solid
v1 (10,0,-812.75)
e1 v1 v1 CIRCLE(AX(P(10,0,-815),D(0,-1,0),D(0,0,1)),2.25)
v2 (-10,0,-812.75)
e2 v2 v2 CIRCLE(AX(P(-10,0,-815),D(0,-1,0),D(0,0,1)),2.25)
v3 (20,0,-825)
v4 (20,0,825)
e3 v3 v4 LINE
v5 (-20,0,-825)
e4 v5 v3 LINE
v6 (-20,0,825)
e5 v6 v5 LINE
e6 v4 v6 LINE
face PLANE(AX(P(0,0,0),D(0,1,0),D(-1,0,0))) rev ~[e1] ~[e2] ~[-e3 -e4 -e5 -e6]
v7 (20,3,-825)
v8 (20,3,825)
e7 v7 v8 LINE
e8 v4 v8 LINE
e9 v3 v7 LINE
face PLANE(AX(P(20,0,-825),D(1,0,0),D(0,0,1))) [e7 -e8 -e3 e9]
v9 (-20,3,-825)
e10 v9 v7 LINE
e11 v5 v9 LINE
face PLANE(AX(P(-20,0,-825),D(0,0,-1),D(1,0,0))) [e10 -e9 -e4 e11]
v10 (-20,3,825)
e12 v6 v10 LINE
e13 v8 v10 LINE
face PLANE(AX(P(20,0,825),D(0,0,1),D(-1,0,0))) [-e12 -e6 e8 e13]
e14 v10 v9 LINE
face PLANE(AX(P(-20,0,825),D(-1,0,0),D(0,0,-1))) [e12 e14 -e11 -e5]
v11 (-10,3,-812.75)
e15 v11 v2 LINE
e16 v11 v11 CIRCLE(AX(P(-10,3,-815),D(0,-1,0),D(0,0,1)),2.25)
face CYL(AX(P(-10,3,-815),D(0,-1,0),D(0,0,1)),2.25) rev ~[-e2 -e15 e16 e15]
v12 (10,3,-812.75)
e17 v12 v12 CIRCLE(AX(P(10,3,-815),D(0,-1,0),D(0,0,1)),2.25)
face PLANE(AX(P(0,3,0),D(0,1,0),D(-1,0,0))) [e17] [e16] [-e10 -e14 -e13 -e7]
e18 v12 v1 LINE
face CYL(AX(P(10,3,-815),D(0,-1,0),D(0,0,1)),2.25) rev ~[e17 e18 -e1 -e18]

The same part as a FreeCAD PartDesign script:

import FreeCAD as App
import Part
import Sketcher
from FreeCAD import Vector

doc = App.newDocument("Part")
body = doc.addObject("PartDesign::Body", "Body")

# Sketch on XZ plane
sketch1 = body.newObject("Sketcher::SketchObject", "Sketch")
sketch1.AttachmentSupport = (doc.getObject("XZ_Plane"), [""])
sketch1.MapMode = "FlatFace"
sketch1.addGeometry(Part.LineSegment(Vector(-20, 825, 0), Vector(20, 825, 0)), False)
sketch1.addGeometry(Part.LineSegment(Vector(20, 825, 0), Vector(20, -825, 0)), False)
sketch1.addGeometry(Part.LineSegment(Vector(20, -825, 0), Vector(-20, -825, 0)), False)
sketch1.addGeometry(Part.LineSegment(Vector(-20, -825, 0), Vector(-20, 825, 0)), False)
sketch1.addConstraint(Sketcher.Constraint("Coincident", 0, 2, 1, 1))
sketch1.addConstraint(Sketcher.Constraint("Coincident", 1, 2, 2, 1))
sketch1.addConstraint(Sketcher.Constraint("Coincident", 2, 2, 3, 1))
sketch1.addConstraint(Sketcher.Constraint("Coincident", 3, 2, 0, 1))
sketch1.addConstraint(Sketcher.Constraint("Horizontal", 0))
sketch1.addConstraint(Sketcher.Constraint("Vertical", 1))
sketch1.addConstraint(Sketcher.Constraint("Horizontal", 2))
sketch1.addConstraint(Sketcher.Constraint("Vertical", 3))
sketch1.addConstraint(Sketcher.Constraint("Symmetric", 0, 2, 2, 2, -1, 1))
sketch1.addConstraint(Sketcher.Constraint("DistanceX", 0, 1, 0, 2, 40.0))
sketch1.addConstraint(Sketcher.Constraint("DistanceY", 1, 2, 1, 1, 1650.0))
pad1 = body.newObject("PartDesign::Pad", "Pad")
pad1.Profile = sketch1
pad1.Length = 3
pad1.Reversed = True

# Sketch on XZ plane
sketch2 = body.newObject("Sketcher::SketchObject", "Sketch001")
sketch2.AttachmentSupport = (doc.getObject("XZ_Plane"), [""])
sketch2.MapMode = "FlatFace"
sketch2.AttachmentOffset = App.Placement(Vector(0, 0, -3), App.Rotation())
sketch2.addGeometry(Part.Circle(Vector(-10, -815, 0), Vector(0, 0, 1), 2.25), False)
sketch2.addGeometry(Part.Circle(Vector(10, -815, 0), Vector(0, 0, 1), 2.25), False)
sketch2.addConstraint(Sketcher.Constraint("Equal", 0, 1))
sketch2.addConstraint(Sketcher.Constraint("Symmetric", 0, 3, 1, 3, -2))
sketch2.addConstraint(Sketcher.Constraint("Diameter", 0, 4.5))
sketch2.addConstraint(Sketcher.Constraint("DistanceX", 0, 3, -1, 1, 10.0))
sketch2.addConstraint(Sketcher.Constraint("DistanceY", 0, 3, -1, 1, 815.0))
doc.recompute()
hole = body.newObject("PartDesign::Hole", "Hole")
hole.Profile = sketch2
hole.ThreadType = "None"
hole.Diameter = 4.5
hole.DepthType = "Dimension"
hole.Depth = 8
hole.DrillPoint = "Flat"
hole.Reversed = True

doc.recompute()
